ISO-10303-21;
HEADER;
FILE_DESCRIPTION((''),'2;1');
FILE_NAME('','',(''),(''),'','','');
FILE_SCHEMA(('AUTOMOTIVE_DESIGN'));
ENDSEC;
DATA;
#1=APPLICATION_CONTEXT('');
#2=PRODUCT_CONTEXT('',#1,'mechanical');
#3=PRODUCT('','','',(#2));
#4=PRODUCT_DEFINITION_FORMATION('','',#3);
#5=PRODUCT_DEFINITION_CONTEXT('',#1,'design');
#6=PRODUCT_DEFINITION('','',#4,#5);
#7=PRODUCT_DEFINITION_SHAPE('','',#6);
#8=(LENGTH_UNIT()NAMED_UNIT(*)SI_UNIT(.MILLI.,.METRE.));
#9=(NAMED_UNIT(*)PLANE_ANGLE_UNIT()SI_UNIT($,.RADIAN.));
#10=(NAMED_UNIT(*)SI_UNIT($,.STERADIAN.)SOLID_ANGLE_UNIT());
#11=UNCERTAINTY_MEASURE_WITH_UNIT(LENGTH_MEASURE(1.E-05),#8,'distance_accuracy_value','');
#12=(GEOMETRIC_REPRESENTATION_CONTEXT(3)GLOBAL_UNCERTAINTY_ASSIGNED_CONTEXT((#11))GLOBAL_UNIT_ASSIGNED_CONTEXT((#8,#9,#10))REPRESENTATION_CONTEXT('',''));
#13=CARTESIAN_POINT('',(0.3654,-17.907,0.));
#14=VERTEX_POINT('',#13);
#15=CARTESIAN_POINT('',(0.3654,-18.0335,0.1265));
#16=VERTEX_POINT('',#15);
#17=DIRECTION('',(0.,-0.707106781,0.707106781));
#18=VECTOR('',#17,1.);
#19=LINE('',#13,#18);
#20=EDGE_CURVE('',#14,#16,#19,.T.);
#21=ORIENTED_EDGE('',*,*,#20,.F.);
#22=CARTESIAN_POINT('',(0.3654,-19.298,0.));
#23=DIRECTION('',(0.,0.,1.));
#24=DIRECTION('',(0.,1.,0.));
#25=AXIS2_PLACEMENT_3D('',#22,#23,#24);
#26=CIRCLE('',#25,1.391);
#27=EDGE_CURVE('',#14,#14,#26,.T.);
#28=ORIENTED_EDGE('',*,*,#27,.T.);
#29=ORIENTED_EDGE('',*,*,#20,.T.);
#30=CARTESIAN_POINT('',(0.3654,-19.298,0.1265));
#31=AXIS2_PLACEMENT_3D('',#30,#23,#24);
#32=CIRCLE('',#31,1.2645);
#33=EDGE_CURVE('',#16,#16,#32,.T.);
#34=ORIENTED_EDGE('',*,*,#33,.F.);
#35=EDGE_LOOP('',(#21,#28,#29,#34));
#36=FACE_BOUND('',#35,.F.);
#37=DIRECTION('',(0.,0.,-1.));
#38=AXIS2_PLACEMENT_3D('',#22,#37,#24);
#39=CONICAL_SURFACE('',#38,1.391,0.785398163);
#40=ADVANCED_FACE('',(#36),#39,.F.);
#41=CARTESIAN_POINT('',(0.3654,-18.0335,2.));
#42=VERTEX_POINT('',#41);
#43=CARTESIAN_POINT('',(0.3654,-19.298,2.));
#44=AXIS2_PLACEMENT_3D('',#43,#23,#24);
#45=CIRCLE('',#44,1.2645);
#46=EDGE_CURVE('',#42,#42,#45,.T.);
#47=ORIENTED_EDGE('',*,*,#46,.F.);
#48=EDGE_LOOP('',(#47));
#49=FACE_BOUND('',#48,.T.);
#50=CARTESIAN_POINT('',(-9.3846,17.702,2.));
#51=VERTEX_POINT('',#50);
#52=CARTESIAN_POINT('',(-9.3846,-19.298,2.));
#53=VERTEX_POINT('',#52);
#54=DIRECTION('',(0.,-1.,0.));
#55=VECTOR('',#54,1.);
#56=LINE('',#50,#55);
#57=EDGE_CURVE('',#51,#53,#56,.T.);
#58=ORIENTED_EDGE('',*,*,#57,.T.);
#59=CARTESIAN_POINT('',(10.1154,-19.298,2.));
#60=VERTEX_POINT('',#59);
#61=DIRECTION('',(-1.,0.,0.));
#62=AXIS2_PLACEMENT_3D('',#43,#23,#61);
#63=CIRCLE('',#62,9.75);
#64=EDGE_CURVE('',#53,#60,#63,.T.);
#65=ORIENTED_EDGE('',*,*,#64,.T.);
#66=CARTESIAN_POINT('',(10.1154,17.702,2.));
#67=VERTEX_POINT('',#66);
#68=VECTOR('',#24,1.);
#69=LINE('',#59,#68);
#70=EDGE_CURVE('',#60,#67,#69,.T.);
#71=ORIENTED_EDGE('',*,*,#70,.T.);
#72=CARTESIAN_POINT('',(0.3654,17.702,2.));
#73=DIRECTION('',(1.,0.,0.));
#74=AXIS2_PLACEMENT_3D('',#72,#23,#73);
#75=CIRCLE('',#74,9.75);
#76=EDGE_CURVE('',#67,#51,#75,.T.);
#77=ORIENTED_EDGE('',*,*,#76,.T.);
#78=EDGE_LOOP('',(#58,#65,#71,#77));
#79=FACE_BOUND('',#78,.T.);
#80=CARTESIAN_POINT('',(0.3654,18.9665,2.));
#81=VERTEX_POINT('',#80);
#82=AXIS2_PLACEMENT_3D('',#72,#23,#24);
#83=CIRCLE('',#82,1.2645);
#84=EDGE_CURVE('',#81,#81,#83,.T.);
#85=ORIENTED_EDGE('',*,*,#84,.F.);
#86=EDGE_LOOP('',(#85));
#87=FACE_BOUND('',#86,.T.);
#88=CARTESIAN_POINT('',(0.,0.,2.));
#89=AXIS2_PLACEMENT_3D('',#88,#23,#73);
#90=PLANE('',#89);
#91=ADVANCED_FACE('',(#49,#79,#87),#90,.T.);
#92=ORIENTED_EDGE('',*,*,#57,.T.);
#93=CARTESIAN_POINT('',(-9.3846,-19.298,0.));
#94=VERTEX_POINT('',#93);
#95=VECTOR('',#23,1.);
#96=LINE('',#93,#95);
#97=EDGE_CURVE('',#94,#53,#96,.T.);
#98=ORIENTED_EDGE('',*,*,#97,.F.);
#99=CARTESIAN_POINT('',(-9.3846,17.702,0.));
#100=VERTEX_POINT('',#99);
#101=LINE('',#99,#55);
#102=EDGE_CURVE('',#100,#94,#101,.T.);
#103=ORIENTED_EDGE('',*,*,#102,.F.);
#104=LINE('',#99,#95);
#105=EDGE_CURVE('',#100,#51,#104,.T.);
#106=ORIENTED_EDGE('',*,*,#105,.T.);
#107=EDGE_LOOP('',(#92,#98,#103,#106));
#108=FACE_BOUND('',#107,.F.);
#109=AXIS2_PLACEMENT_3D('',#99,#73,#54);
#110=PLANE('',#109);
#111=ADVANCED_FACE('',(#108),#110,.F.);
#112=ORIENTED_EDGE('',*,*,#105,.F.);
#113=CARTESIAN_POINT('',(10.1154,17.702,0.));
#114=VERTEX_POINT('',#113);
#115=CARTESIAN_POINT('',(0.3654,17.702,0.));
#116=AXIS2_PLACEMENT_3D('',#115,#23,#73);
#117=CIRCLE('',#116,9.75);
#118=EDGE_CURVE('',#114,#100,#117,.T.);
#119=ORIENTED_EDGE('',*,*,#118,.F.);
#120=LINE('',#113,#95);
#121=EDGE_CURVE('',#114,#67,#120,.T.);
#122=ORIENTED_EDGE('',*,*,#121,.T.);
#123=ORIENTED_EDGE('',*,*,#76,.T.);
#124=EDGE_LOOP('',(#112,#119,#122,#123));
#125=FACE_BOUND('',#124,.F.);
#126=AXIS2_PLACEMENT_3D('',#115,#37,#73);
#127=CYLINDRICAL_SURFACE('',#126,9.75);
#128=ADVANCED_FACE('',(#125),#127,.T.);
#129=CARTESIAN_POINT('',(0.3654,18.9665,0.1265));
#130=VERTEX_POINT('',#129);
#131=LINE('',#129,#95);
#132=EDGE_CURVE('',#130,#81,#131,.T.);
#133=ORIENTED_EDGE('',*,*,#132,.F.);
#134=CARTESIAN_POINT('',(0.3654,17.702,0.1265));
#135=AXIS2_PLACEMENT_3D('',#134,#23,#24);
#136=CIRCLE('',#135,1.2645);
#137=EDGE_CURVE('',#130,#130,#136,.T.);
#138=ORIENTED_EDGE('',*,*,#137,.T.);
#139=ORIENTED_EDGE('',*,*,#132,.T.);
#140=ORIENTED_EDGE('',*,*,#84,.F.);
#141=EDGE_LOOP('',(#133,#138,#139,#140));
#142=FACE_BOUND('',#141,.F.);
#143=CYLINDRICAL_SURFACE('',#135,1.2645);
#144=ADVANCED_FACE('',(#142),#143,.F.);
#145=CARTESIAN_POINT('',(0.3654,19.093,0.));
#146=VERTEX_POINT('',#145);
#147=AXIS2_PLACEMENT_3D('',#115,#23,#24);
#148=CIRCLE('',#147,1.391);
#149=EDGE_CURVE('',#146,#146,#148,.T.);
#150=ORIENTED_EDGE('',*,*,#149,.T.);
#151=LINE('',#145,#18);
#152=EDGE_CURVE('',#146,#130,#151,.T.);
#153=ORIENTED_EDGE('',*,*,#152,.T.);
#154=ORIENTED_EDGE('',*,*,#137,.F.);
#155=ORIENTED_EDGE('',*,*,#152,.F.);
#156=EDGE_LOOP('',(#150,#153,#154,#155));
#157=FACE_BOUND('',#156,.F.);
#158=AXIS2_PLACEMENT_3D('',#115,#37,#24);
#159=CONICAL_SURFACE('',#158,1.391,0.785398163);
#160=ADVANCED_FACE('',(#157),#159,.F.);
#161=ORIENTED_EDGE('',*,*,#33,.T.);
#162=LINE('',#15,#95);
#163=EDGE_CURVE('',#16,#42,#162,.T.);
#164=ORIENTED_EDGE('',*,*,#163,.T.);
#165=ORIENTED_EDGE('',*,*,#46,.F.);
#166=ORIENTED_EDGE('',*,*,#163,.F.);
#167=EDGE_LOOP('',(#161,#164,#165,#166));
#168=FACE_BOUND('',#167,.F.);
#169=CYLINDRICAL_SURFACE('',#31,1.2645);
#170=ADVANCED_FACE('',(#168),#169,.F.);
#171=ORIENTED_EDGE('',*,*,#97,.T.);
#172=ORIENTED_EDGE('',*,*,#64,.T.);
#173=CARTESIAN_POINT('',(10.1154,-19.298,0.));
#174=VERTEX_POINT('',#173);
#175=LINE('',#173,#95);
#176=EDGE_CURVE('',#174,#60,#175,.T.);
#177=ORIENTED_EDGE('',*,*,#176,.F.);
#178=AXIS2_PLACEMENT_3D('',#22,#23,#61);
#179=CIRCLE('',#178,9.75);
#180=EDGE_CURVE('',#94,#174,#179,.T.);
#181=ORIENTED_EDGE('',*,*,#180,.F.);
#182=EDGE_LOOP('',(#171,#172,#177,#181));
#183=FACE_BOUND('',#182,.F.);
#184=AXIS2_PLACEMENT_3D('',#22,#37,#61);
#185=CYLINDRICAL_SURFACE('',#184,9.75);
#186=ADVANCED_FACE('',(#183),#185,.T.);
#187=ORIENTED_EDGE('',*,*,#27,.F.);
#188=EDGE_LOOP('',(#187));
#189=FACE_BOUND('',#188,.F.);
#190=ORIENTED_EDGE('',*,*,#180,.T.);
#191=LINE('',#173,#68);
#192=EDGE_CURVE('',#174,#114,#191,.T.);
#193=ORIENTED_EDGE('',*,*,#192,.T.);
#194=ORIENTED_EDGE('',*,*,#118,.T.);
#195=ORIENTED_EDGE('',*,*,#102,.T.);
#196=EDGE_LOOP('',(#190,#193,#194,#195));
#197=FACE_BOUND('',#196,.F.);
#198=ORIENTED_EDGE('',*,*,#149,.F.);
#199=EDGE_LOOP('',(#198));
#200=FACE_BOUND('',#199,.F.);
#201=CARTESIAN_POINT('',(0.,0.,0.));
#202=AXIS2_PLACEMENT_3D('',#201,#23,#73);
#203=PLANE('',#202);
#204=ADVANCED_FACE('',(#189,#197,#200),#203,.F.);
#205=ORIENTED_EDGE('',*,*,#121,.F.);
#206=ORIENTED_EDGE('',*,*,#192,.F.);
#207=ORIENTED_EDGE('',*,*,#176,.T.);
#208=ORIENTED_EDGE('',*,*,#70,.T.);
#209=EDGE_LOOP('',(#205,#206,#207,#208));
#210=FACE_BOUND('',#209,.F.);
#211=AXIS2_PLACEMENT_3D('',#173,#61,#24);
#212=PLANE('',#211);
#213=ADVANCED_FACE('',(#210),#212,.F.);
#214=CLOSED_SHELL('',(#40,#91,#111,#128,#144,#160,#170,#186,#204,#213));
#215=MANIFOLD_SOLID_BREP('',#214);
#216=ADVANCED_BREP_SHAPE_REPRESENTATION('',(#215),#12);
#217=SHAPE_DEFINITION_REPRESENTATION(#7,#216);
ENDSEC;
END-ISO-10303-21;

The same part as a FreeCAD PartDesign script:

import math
import FreeCAD as App
import Part
import Sketcher
from FreeCAD import Vector

doc = App.newDocument("Part")
body = doc.addObject("PartDesign::Body", "Body")

sketch1 = body.newObject("Sketcher::SketchObject", "Sketch")
sketch1.AttachmentSupport = (doc.getObject("XY_Plane"), [""])
sketch1.MapMode = "FlatFace"
sketch1.addGeometry([
    Part.ArcOfCircle(Part.Circle(Vector(0, 18, 0), Vector(0, 0, 1), 10), math.radians(0), math.radians(180)),
    Part.LineSegment(Vector(-9, 18, 0), Vector(-9, -19, 0)),
    Part.ArcOfCircle(Part.Circle(Vector(0, -19, 0), Vector(0, 0, 1), 10), math.radians(180), math.radians(360)),
    Part.LineSegment(Vector(10, -19, 0), Vector(10, 18, 0)),
], False)
sketch1.addConstraint([
    Sketcher.Constraint("Tangent", 0, 2, 1, 1),
    Sketcher.Constraint("Tangent", 1, 2, 2, 1),
    Sketcher.Constraint("Tangent", 2, 2, 3, 1),
    Sketcher.Constraint("Tangent", 3, 2, 0, 1),
    Sketcher.Constraint("Vertical", 1),
    Sketcher.Constraint("Vertical", 3),
    Sketcher.Constraint("DistanceY", 1, 2, 1, 1, 37.0),
    Sketcher.Constraint("Radius", 0, 9.75),
    Sketcher.Constraint("DistanceY", -1, 1, 0, 3, 17.702),
    Sketcher.Constraint("DistanceX", -1, 1, 0, 3, 0.3654),
])
pad1 = body.newObject("PartDesign::Pad", "Pad")
pad1.Profile = sketch1
pad1.Length = 2

sketch2 = body.newObject("Sketcher::SketchObject", "Sketch001")
sketch2.AttachmentSupport = (doc.getObject("XY_Plane"), [""])
sketch2.MapMode = "FlatFace"
sketch2.addGeometry([
    Part.Circle(Vector(0.4, 17.7, 0), Vector(0, 0, 1), 1.3),
    Part.Circle(Vector(0.4, -19.3, 0), Vector(0, 0, 1), 1.3),
], False)
sketch2.addConstraint([
    Sketcher.Constraint("Equal", 0, 1),
    Sketcher.Constraint("Vertical", 0, 3, 1, 3),
    Sketcher.Constraint("Diameter", 0, 2.529),
    Sketcher.Constraint("DistanceY", 1, 3, 0, 3, 37.0),
    Sketcher.Constraint("DistanceY", -1, 1, 0, 3, 17.702),
    Sketcher.Constraint("DistanceX", -1, 1, 0, 3, 0.3654),
])
doc.recompute()
hole = body.newObject("PartDesign::Hole", "Hole")
hole.Profile = sketch2
hole.ThreadType = "None"
hole.Diameter = 2.529
hole.DepthType = "Dimension"
hole.Depth = 2
hole.DrillPoint = "Flat"
hole.HoleCutType = "Countersink"
hole.HoleCutDiameter = 2.782
hole.HoleCutCountersinkAngle = 90
hole.Reversed = True

doc.recompute()
